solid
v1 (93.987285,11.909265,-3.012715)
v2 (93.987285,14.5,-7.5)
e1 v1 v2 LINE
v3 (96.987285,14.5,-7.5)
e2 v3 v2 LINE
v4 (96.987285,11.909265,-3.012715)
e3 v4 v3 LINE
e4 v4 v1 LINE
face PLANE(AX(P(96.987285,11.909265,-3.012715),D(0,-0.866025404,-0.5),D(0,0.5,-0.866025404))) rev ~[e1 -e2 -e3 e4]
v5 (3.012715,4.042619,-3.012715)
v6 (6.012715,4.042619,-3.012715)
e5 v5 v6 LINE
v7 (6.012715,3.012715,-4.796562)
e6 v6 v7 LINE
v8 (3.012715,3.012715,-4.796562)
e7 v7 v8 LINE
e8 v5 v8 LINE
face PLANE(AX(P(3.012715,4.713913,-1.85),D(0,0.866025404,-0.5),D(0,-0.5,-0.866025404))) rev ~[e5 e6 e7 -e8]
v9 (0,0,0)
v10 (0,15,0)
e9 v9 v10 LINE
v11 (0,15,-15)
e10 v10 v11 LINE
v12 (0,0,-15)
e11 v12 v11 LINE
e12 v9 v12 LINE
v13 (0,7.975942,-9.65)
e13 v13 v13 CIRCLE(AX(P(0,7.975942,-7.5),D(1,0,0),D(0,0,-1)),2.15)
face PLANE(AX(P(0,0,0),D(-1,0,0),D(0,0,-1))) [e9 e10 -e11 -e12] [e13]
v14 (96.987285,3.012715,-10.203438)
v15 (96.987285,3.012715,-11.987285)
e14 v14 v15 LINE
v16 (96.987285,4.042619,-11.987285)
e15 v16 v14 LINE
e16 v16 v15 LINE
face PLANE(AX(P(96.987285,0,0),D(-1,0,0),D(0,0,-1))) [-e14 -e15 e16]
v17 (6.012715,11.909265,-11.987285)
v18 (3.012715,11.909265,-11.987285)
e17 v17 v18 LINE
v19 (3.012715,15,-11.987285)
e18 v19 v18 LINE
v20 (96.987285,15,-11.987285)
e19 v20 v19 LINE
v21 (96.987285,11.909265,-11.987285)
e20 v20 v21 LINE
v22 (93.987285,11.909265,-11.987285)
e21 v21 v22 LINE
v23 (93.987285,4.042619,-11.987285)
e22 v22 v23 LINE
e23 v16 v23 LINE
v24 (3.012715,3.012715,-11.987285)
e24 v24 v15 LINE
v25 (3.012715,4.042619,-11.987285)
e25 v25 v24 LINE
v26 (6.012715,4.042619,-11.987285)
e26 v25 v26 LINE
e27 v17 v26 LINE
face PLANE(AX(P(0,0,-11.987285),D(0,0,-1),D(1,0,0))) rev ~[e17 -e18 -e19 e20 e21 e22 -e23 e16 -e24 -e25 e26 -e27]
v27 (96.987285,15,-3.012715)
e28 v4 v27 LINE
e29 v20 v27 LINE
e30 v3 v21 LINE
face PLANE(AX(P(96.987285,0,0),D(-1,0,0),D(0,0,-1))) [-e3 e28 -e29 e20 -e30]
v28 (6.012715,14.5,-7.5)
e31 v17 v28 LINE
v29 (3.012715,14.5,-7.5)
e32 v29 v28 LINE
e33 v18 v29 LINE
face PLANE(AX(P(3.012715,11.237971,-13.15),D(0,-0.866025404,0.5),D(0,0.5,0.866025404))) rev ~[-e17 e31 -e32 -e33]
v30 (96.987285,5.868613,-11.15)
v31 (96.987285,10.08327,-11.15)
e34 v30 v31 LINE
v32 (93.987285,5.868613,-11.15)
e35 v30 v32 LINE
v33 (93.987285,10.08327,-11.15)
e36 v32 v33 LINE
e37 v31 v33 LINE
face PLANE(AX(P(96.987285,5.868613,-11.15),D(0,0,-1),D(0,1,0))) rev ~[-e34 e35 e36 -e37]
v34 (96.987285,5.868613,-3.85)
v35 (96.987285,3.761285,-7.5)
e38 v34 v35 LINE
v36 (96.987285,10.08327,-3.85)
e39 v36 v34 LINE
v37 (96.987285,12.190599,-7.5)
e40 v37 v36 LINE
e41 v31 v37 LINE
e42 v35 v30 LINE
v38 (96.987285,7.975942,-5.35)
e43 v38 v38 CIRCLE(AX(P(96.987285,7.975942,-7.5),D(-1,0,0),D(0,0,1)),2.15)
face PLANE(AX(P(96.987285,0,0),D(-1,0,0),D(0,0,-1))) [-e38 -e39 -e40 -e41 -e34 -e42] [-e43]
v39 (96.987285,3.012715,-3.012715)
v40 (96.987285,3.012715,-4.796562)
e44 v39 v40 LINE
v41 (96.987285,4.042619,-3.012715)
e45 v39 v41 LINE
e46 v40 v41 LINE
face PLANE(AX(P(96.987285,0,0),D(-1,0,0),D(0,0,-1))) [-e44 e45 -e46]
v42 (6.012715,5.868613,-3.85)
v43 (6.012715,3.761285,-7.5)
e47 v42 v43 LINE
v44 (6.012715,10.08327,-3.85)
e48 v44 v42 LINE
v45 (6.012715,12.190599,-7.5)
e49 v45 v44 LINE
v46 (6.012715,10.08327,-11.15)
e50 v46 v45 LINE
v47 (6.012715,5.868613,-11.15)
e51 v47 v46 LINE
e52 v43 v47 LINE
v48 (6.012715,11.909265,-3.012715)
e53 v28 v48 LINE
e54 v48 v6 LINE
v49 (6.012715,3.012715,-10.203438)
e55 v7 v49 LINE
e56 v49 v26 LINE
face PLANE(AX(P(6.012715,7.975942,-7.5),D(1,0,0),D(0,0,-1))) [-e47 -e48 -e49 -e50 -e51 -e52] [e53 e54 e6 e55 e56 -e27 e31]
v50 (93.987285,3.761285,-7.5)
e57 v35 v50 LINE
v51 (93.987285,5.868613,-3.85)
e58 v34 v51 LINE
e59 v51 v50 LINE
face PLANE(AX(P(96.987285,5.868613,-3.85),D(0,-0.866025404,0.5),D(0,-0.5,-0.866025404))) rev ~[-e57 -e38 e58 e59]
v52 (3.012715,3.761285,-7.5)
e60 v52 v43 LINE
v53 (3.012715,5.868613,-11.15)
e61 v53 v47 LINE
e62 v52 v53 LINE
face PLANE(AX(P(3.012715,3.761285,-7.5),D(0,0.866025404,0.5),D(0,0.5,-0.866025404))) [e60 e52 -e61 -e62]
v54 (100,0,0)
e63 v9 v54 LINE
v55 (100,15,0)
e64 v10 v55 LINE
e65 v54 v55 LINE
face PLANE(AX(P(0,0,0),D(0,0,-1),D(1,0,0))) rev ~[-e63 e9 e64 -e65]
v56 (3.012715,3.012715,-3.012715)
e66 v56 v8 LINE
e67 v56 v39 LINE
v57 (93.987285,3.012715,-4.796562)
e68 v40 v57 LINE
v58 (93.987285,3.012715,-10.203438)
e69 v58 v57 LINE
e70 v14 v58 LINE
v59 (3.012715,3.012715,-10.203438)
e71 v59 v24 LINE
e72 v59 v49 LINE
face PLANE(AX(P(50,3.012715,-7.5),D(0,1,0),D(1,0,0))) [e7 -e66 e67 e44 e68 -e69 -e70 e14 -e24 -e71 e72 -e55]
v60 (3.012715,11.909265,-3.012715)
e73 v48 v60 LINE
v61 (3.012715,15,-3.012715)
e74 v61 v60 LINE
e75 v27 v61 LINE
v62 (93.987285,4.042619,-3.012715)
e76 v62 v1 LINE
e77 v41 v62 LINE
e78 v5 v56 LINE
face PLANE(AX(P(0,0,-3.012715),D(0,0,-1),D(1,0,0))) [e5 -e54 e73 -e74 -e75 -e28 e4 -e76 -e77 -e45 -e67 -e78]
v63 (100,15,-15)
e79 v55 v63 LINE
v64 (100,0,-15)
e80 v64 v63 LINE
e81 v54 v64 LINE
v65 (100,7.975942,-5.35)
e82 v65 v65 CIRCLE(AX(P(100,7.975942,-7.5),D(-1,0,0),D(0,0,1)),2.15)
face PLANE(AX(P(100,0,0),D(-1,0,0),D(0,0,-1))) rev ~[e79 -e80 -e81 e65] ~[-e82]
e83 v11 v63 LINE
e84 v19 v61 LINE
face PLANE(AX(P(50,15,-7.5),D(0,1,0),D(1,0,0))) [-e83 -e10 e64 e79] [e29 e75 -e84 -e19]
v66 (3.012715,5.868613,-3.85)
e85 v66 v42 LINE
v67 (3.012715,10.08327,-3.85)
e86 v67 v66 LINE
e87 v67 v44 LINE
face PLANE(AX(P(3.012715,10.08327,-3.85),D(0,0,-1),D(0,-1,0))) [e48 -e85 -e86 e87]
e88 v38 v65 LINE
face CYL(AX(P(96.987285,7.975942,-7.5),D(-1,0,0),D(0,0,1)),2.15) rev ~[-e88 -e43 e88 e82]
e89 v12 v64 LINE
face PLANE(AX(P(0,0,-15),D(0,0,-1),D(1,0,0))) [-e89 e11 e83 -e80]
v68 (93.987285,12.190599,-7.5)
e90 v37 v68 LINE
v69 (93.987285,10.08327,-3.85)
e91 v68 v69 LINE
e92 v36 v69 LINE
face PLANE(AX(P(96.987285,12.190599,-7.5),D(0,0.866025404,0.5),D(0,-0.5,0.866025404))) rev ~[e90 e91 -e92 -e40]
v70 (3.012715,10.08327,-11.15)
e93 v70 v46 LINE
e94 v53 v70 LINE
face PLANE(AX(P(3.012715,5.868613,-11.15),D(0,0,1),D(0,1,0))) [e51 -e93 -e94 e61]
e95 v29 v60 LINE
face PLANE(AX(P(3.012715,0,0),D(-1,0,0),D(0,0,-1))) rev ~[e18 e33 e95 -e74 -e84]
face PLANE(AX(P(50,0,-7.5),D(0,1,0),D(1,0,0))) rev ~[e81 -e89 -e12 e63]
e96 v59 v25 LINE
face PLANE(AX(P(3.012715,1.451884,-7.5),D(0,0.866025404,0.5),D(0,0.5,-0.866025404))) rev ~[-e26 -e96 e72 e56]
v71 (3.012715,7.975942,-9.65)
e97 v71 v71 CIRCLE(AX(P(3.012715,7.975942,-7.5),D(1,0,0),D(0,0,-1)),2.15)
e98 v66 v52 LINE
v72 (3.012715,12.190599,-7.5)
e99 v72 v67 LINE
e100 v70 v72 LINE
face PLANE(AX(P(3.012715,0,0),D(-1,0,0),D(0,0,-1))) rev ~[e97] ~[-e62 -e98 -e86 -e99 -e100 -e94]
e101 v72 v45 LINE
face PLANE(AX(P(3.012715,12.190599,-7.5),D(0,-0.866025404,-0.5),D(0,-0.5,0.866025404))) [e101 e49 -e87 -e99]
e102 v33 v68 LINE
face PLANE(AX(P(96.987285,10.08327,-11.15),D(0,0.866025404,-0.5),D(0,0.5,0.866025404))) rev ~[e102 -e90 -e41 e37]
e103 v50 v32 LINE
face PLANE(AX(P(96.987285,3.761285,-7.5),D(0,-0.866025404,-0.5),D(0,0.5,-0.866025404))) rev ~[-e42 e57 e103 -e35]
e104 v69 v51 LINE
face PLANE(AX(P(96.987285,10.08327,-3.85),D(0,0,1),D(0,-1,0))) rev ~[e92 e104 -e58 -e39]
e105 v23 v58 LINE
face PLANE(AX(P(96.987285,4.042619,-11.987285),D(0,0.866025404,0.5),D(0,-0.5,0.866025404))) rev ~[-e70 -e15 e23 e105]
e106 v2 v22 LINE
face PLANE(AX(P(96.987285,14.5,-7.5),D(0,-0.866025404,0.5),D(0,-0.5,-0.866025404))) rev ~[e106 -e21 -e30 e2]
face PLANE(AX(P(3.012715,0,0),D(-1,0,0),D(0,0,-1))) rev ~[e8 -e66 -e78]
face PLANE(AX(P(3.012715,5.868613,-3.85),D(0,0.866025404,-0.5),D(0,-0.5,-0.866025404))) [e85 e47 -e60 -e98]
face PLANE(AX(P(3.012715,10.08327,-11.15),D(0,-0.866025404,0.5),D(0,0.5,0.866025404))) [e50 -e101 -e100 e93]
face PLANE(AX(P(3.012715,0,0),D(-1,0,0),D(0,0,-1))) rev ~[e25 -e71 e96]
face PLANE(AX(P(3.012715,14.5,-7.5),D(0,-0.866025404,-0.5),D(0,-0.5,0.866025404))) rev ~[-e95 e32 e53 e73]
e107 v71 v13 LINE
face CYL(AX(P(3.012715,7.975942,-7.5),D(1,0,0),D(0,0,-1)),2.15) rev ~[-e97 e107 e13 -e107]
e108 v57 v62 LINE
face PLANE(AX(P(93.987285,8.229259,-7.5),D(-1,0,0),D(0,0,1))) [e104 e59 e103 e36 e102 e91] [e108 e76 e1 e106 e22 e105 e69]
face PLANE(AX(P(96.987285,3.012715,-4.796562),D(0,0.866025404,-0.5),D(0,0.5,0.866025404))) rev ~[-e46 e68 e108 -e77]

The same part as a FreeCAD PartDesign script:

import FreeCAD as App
import Part
import Sketcher
from FreeCAD import Vector
Q = App.Units.Quantity


def faces_at(feature, points):
    """Names of the faces that lie closest to the given points."""
    faces = feature.Shape.Faces
    near = lambda p: min(range(len(faces)), key=lambda i: faces[i].distToShape(Part.Vertex(*p))[0])
    return sorted({f"Face{near(p) + 1}" for p in points})

doc = App.newDocument("Part")
params = doc.addObject("Spreadsheet::Sheet", "Params")
for row, (alias, value) in enumerate([
    ("sketch1_width", "100 mm"),
    ("sketch1_height", "15 mm"),
    ("pad1_length", "15 mm"),
    ("thickness_wall", "3.012715 mm"),
    ("pad2_length", "3 mm"),
    ("sketch3_diameter", "4.3 mm"),
    ("pad3_length", "3 mm"),
    ("sketch5_diameter", "4.3 mm"),
], start=1):
    params.set(f"A{row}", alias)
    params.set(f"B{row}", "=" + value)
    params.setAlias(f"B{row}", alias)

body = doc.addObject("PartDesign::Body", "Body")

sketch1 = body.newObject("Sketcher::SketchObject", "Sketch")
sketch1.AttachmentSupport = (doc.getObject("XZ_Plane"), [""])
sketch1.MapMode = "FlatFace"
sketch1.addGeometry(Part.LineSegment(Vector(0, -15, 0), Vector(0, 0, 0)), False)
sketch1.addGeometry(Part.LineSegment(Vector(0, 0, 0), Vector(100, 0, 0)), False)
sketch1.addGeometry(Part.LineSegment(Vector(100, 0, 0), Vector(100, -15, 0)), False)
sketch1.addGeometry(Part.LineSegment(Vector(100, -15, 0), Vector(0, -15, 0)), False)
sketch1.addConstraint(Sketcher.Constraint("Coincident", 0, 2, 1, 1))
sketch1.addConstraint(Sketcher.Constraint("Coincident", 1, 2, 2, 1))
sketch1.addConstraint(Sketcher.Constraint("Coincident", 2, 2, 3, 1))
sketch1.addConstraint(Sketcher.Constraint("Coincident", 3, 2, 0, 1))
sketch1.addConstraint(Sketcher.Constraint("Vertical", 0))
sketch1.addConstraint(Sketcher.Constraint("Horizontal", 1))
sketch1.addConstraint(Sketcher.Constraint("Vertical", 2))
sketch1.addConstraint(Sketcher.Constraint("Horizontal", 3))
sketch1.addConstraint(Sketcher.Constraint("Coincident", 0, 2, -1, 1))
sketch1.addConstraint(Sketcher.Constraint("DistanceX", 1, 1, 1, 2, Q("100 mm")))
sketch1.addConstraint(Sketcher.Constraint("DistanceY", 0, 1, 0, 2, Q("15 mm")))
sketch1.setExpression("Constraints[9]", "Params.sketch1_width")
sketch1.setExpression("Constraints[10]", "Params.sketch1_height")
pad1 = body.newObject("PartDesign::Pad", "Pad")
pad1.Profile = sketch1
pad1.setExpression("Length", "Params.pad1_length")
pad1.Reversed = True
doc.recompute()

thickness = body.newObject("PartDesign::Thickness", "Thickness")
thickness.Base = (pad1, faces_at(pad1, [(50, 15, -7.5)]))
thickness.setExpression("Value", "Params.thickness_wall")
thickness.Reversed = True
thickness.Join = "Intersection"

sketch2 = body.newObject("Sketcher::SketchObject", "Sketch001")
sketch2.AttachmentSupport = (doc.getObject("YZ_Plane"), [""])
sketch2.MapMode = "FlatFace"
sketch2.AttachmentOffset = App.Placement(Vector(0, 0, 3.012715), App.Rotation())
sketch2.addGeometry(Part.LineSegment(Vector(4.713913, -1.85, 0), Vector(1.451884, -7.5, 0)), False)
sketch2.addGeometry(Part.LineSegment(Vector(1.451884, -7.5, 0), Vector(4.713913, -13.15, 0)), False)
sketch2.addGeometry(Part.LineSegment(Vector(4.713913, -13.15, 0), Vector(11.237971, -13.15, 0)), False)
sketch2.addGeometry(Part.LineSegment(Vector(11.237971, -13.15, 0), Vector(14.5, -7.5, 0)), False)
sketch2.addGeometry(Part.LineSegment(Vector(14.5, -7.5, 0), Vector(11.237971, -1.85, 0)), False)
sketch2.addGeometry(Part.LineSegment(Vector(11.237971, -1.85, 0), Vector(4.713913, -1.85, 0)), False)
sketch2.addGeometry(Part.LineSegment(Vector(5.868613, -11.15, 0), Vector(3.761285, -7.5, 0)), False)
sketch2.addGeometry(Part.LineSegment(Vector(3.761285, -7.5, 0), Vector(5.868613, -3.85, 0)), False)
sketch2.addGeometry(Part.LineSegment(Vector(5.868613, -3.85, 0), Vector(10.08327, -3.85, 0)), False)
sketch2.addGeometry(Part.LineSegment(Vector(10.08327, -3.85, 0), Vector(12.190599, -7.5, 0)), False)
sketch2.addGeometry(Part.LineSegment(Vector(12.190599, -7.5, 0), Vector(10.08327, -11.15, 0)), False)
sketch2.addGeometry(Part.LineSegment(Vector(10.08327, -11.15, 0), Vector(5.868613, -11.15, 0)), False)
sketch2.addConstraint(Sketcher.Constraint("Coincident", 0, 2, 1, 1))
sketch2.addConstraint(Sketcher.Constraint("Coincident", 1, 2, 2, 1))
sketch2.addConstraint(Sketcher.Constraint("Coincident", 2, 2, 3, 1))
sketch2.addConstraint(Sketcher.Constraint("Coincident", 3, 2, 4, 1))
sketch2.addConstraint(Sketcher.Constraint("Coincident", 4, 2, 5, 1))
sketch2.addConstraint(Sketcher.Constraint("Coincident", 5, 2, 0, 1))
sketch2.addConstraint(Sketcher.Constraint("Coincident", 6, 2, 7, 1))
sketch2.addConstraint(Sketcher.Constraint("Coincident", 7, 2, 8, 1))
sketch2.addConstraint(Sketcher.Constraint("Coincident", 8, 2, 9, 1))
sketch2.addConstraint(Sketcher.Constraint("Coincident", 9, 2, 10, 1))
sketch2.addConstraint(Sketcher.Constraint("Coincident", 10, 2, 11, 1))
sketch2.addConstraint(Sketcher.Constraint("Coincident", 11, 2, 6, 1))
sketch2.addConstraint(Sketcher.Constraint("Horizontal", 2))
sketch2.addConstraint(Sketcher.Constraint("Horizontal", 5))
sketch2.addConstraint(Sketcher.Constraint("Horizontal", 8))
sketch2.addConstraint(Sketcher.Constraint("Horizontal", 11))
sketch2.addConstraint(Sketcher.Constraint("Parallel", 0, 3))
sketch2.addConstraint(Sketcher.Constraint("Parallel", 1, 4))
sketch2.addConstraint(Sketcher.Constraint("Parallel", 4, 6))
sketch2.addConstraint(Sketcher.Constraint("Parallel", 3, 7))
sketch2.addConstraint(Sketcher.Constraint("Parallel", 6, 9))
sketch2.addConstraint(Sketcher.Constraint("Parallel", 7, 10))
sketch2.addConstraint(Sketcher.Constraint("Horizontal", 0, 2, 3, 2))
sketch2.addConstraint(Sketcher.Constraint("Horizontal", 3, 2, 6, 2))
sketch2.addConstraint(Sketcher.Constraint("Horizontal", 6, 2, 9, 2))
sketch2.addConstraint(Sketcher.Constraint("Vertical", 2, 2, 4, 2))
sketch2.addConstraint(Sketcher.Constraint("Vertical", 1, 2, 5, 2))
sketch2.addConstraint(Sketcher.Constraint("Vertical", 8, 2, 10, 2))
sketch2.addConstraint(Sketcher.Constraint("Angle", 0, Q("-120 deg")))
sketch2.addConstraint(Sketcher.Constraint("DistanceY", 7, 2, 5, 2, Q("2 mm")))
sketch2.addConstraint(Sketcher.Constraint("DistanceY", 0, 2, -1, 1, Q("7.5 mm")))
sketch2.addConstraint(Sketcher.Constraint("DistanceX", -1, 1, 3, 2, Q("14.5 mm")))
sketch2.addConstraint(Sketcher.Constraint("DistanceY", 2, 2, 4, 2, Q("11.3 mm")))
sketch2.addConstraint(Sketcher.Constraint("DistanceX", 2, 1, 2, 2, Q("6.524058 mm")))
sketch2.addConstraint(Sketcher.Constraint("DistanceX", -1, 1, 9, 2, Q("12.190599 mm")))
sketch2.addConstraint(Sketcher.Constraint("DistanceX", 0, 2, 6, 2, Q("2.309401 mm")))
pad2 = body.newObject("PartDesign::Pad", "Pad001")
pad2.Profile = sketch2
pad2.setExpression("Length", "Params.pad2_length")

sketch3 = body.newObject("Sketcher::SketchObject", "Sketch002")
sketch3.AttachmentSupport = (doc.getObject("YZ_Plane"), [""])
sketch3.MapMode = "FlatFace"
sketch3.AttachmentOffset = App.Placement(Vector(0, 0, 3.012715), App.Rotation())
sketch3.addGeometry(Part.Circle(Vector(7.975942, -7.5, 0), Vector(0, 0, 1), 2.15), False)
sketch3.addConstraint(Sketcher.Constraint("Diameter", 0, Q("4.3 mm")))
sketch3.addConstraint(Sketcher.Constraint("DistanceY", 0, 3, -1, 1, Q("7.5 mm")))
sketch3.addConstraint(Sketcher.Constraint("DistanceX", -1, 1, 0, 3, Q("7.975942 mm")))
sketch3.setExpression("Constraints[0]", "Params.sketch3_diameter")
pocket1 = body.newObject("PartDesign::Pocket", "Pocket")
pocket1.Profile = sketch3
pocket1.Type = "ThroughAll"

sketch4 = body.newObject("Sketcher::SketchObject", "Sketch003")
sketch4.AttachmentSupport = (doc.getObject("YZ_Plane"), [""])
sketch4.MapMode = "FlatFace"
sketch4.AttachmentOffset = App.Placement(Vector(0, 0, 96.987285), App.Rotation())
sketch4.addGeometry(Part.LineSegment(Vector(11.909265, -3.012715, 0), Vector(14.5, -7.5, 0)), False)
sketch4.addGeometry(Part.LineSegment(Vector(14.5, -7.5, 0), Vector(11.909265, -11.987285, 0)), False)
sketch4.addGeometry(Part.LineSegment(Vector(11.909265, -11.987285, 0), Vector(4.042619, -11.987285, 0)), False)
sketch4.addGeometry(Part.LineSegment(Vector(4.042619, -11.987285, 0), Vector(3.012715, -10.203438, 0)), False)
sketch4.addGeometry(Part.LineSegment(Vector(3.012715, -10.203438, 0), Vector(3.012715, -4.796562, 0)), False)
sketch4.addGeometry(Part.LineSegment(Vector(3.012715, -4.796562, 0), Vector(4.042619, -3.012715, 0)), False)
sketch4.addGeometry(Part.LineSegment(Vector(4.042619, -3.012715, 0), Vector(11.909265, -3.012715, 0)), False)
sketch4.addGeometry(Part.LineSegment(Vector(5.868613, -11.15, 0), Vector(10.08327, -11.15, 0)), False)
sketch4.addGeometry(Part.LineSegment(Vector(10.08327, -11.15, 0), Vector(12.190599, -7.5, 0)), False)
sketch4.addGeometry(Part.LineSegment(Vector(12.190599, -7.5, 0), Vector(10.08327, -3.85, 0)), False)
sketch4.addGeometry(Part.LineSegment(Vector(10.08327, -3.85, 0), Vector(5.868613, -3.85, 0)), False)
sketch4.addGeometry(Part.LineSegment(Vector(5.868613, -3.85, 0), Vector(3.761285, -7.5, 0)), False)
sketch4.addGeometry(Part.LineSegment(Vector(3.761285, -7.5, 0), Vector(5.868613, -11.15, 0)), False)
sketch4.addConstraint(Sketcher.Constraint("Coincident", 0, 2, 1, 1))
sketch4.addConstraint(Sketcher.Constraint("Coincident", 1, 2, 2, 1))
sketch4.addConstraint(Sketcher.Constraint("Coincident", 2, 2, 3, 1))
sketch4.addConstraint(Sketcher.Constraint("Coincident", 3, 2, 4, 1))
sketch4.addConstraint(Sketcher.Constraint("Coincident", 4, 2, 5, 1))
sketch4.addConstraint(Sketcher.Constraint("Coincident", 5, 2, 6, 1))
sketch4.addConstraint(Sketcher.Constraint("Coincident", 6, 2, 0, 1))
sketch4.addConstraint(Sketcher.Constraint("Coincident", 7, 2, 8, 1))
sketch4.addConstraint(Sketcher.Constraint("Coincident", 8, 2, 9, 1))
sketch4.addConstraint(Sketcher.Constraint("Coincident", 9, 2, 10, 1))
sketch4.addConstraint(Sketcher.Constraint("Coincident", 10, 2, 11, 1))
sketch4.addConstraint(Sketcher.Constraint("Coincident", 11, 2, 12, 1))
sketch4.addConstraint(Sketcher.Constraint("Coincident", 12, 2, 7, 1))
sketch4.addConstraint(Sketcher.Constraint("Horizontal", 2))
sketch4.addConstraint(Sketcher.Constraint("Vertical", 4))
sketch4.addConstraint(Sketcher.Constraint("Horizontal", 6))
sketch4.addConstraint(Sketcher.Constraint("Horizontal", 7))
sketch4.addConstraint(Sketcher.Constraint("Horizontal", 10))
sketch4.addConstraint(Sketcher.Constraint("Parallel", 0, 3))
sketch4.addConstraint(Sketcher.Constraint("Parallel", 1, 5))
sketch4.addConstraint(Sketcher.Constraint("Parallel", 5, 8))
sketch4.addConstraint(Sketcher.Constraint("Parallel", 3, 9))
sketch4.addConstraint(Sketcher.Constraint("Parallel", 8, 11))
sketch4.addConstraint(Sketcher.Constraint("Parallel", 9, 12))
sketch4.addConstraint(Sketcher.Constraint("Horizontal", 0, 2, 8, 2))
sketch4.addConstraint(Sketcher.Constraint("Horizontal", 8, 2, 11, 2))
sketch4.addConstraint(Sketcher.Constraint("Vertical", 2, 2, 5, 2))
sketch4.addConstraint(Sketcher.Constraint("Vertical", 1, 2, 6, 2))
sketch4.addConstraint(Sketcher.Constraint("Vertical", 7, 2, 9, 2))
sketch4.addConstraint(Sketcher.Constraint("Vertical", 10, 2, 12, 2))
sketch4.addConstraint(Sketcher.Constraint("Angle", 0, Q("-60 deg")))
sketch4.addConstraint(Sketcher.Constraint("DistanceX", -1, 1, 0, 2, Q("14.5 mm")))
sketch4.addConstraint(Sketcher.Constraint("DistanceY", 0, 2, -1, 1, Q("7.5 mm")))
sketch4.addConstraint(Sketcher.Constraint("DistanceY", 7, 2, -1, 1, Q("11.15 mm")))
sketch4.addConstraint(Sketcher.Constraint("DistanceX", -1, 1, 8, 2, Q("12.190599 mm")))
sketch4.addConstraint(Sketcher.Constraint("DistanceX", 4, 2, 10, 2, Q("2.855899 mm")))
sketch4.addConstraint(Sketcher.Constraint("Distance", 0, Q("5.181471 mm")))
sketch4.addConstraint(Sketcher.Constraint("Distance", 3, Q("2.059809 mm")))
sketch4.addConstraint(Sketcher.Constraint("DistanceX", 2, 2, 2, 1, Q("7.866645 mm")))
pad3 = body.newObject("PartDesign::Pad", "Pad002")
pad3.Profile = sketch4
pad3.setExpression("Length", "Params.pad3_length")
pad3.Reversed = True

sketch5 = body.newObject("Sketcher::SketchObject", "Sketch004")
sketch5.AttachmentSupport = (doc.getObject("YZ_Plane"), [""])
sketch5.MapMode = "FlatFace"
sketch5.AttachmentOffset = App.Placement(Vector(0, 0, 96.987285), App.Rotation())
sketch5.addGeometry(Part.Circle(Vector(7.975942, -7.5, 0), Vector(0, 0, 1), 2.15), False)
sketch5.addConstraint(Sketcher.Constraint("Diameter", 0, Q("4.3 mm")))
sketch5.addConstraint(Sketcher.Constraint("DistanceY", 0, 3, -1, 1, Q("7.5 mm")))
sketch5.addConstraint(Sketcher.Constraint("DistanceX", -1, 1, 0, 3, Q("7.975942 mm")))
sketch5.setExpression("Constraints[0]", "Params.sketch5_diameter")
pocket2 = body.newObject("PartDesign::Pocket", "Pocket001")
pocket2.Profile = sketch5
pocket2.Type = "ThroughAll"
pocket2.Reversed = True

doc.recompute()
